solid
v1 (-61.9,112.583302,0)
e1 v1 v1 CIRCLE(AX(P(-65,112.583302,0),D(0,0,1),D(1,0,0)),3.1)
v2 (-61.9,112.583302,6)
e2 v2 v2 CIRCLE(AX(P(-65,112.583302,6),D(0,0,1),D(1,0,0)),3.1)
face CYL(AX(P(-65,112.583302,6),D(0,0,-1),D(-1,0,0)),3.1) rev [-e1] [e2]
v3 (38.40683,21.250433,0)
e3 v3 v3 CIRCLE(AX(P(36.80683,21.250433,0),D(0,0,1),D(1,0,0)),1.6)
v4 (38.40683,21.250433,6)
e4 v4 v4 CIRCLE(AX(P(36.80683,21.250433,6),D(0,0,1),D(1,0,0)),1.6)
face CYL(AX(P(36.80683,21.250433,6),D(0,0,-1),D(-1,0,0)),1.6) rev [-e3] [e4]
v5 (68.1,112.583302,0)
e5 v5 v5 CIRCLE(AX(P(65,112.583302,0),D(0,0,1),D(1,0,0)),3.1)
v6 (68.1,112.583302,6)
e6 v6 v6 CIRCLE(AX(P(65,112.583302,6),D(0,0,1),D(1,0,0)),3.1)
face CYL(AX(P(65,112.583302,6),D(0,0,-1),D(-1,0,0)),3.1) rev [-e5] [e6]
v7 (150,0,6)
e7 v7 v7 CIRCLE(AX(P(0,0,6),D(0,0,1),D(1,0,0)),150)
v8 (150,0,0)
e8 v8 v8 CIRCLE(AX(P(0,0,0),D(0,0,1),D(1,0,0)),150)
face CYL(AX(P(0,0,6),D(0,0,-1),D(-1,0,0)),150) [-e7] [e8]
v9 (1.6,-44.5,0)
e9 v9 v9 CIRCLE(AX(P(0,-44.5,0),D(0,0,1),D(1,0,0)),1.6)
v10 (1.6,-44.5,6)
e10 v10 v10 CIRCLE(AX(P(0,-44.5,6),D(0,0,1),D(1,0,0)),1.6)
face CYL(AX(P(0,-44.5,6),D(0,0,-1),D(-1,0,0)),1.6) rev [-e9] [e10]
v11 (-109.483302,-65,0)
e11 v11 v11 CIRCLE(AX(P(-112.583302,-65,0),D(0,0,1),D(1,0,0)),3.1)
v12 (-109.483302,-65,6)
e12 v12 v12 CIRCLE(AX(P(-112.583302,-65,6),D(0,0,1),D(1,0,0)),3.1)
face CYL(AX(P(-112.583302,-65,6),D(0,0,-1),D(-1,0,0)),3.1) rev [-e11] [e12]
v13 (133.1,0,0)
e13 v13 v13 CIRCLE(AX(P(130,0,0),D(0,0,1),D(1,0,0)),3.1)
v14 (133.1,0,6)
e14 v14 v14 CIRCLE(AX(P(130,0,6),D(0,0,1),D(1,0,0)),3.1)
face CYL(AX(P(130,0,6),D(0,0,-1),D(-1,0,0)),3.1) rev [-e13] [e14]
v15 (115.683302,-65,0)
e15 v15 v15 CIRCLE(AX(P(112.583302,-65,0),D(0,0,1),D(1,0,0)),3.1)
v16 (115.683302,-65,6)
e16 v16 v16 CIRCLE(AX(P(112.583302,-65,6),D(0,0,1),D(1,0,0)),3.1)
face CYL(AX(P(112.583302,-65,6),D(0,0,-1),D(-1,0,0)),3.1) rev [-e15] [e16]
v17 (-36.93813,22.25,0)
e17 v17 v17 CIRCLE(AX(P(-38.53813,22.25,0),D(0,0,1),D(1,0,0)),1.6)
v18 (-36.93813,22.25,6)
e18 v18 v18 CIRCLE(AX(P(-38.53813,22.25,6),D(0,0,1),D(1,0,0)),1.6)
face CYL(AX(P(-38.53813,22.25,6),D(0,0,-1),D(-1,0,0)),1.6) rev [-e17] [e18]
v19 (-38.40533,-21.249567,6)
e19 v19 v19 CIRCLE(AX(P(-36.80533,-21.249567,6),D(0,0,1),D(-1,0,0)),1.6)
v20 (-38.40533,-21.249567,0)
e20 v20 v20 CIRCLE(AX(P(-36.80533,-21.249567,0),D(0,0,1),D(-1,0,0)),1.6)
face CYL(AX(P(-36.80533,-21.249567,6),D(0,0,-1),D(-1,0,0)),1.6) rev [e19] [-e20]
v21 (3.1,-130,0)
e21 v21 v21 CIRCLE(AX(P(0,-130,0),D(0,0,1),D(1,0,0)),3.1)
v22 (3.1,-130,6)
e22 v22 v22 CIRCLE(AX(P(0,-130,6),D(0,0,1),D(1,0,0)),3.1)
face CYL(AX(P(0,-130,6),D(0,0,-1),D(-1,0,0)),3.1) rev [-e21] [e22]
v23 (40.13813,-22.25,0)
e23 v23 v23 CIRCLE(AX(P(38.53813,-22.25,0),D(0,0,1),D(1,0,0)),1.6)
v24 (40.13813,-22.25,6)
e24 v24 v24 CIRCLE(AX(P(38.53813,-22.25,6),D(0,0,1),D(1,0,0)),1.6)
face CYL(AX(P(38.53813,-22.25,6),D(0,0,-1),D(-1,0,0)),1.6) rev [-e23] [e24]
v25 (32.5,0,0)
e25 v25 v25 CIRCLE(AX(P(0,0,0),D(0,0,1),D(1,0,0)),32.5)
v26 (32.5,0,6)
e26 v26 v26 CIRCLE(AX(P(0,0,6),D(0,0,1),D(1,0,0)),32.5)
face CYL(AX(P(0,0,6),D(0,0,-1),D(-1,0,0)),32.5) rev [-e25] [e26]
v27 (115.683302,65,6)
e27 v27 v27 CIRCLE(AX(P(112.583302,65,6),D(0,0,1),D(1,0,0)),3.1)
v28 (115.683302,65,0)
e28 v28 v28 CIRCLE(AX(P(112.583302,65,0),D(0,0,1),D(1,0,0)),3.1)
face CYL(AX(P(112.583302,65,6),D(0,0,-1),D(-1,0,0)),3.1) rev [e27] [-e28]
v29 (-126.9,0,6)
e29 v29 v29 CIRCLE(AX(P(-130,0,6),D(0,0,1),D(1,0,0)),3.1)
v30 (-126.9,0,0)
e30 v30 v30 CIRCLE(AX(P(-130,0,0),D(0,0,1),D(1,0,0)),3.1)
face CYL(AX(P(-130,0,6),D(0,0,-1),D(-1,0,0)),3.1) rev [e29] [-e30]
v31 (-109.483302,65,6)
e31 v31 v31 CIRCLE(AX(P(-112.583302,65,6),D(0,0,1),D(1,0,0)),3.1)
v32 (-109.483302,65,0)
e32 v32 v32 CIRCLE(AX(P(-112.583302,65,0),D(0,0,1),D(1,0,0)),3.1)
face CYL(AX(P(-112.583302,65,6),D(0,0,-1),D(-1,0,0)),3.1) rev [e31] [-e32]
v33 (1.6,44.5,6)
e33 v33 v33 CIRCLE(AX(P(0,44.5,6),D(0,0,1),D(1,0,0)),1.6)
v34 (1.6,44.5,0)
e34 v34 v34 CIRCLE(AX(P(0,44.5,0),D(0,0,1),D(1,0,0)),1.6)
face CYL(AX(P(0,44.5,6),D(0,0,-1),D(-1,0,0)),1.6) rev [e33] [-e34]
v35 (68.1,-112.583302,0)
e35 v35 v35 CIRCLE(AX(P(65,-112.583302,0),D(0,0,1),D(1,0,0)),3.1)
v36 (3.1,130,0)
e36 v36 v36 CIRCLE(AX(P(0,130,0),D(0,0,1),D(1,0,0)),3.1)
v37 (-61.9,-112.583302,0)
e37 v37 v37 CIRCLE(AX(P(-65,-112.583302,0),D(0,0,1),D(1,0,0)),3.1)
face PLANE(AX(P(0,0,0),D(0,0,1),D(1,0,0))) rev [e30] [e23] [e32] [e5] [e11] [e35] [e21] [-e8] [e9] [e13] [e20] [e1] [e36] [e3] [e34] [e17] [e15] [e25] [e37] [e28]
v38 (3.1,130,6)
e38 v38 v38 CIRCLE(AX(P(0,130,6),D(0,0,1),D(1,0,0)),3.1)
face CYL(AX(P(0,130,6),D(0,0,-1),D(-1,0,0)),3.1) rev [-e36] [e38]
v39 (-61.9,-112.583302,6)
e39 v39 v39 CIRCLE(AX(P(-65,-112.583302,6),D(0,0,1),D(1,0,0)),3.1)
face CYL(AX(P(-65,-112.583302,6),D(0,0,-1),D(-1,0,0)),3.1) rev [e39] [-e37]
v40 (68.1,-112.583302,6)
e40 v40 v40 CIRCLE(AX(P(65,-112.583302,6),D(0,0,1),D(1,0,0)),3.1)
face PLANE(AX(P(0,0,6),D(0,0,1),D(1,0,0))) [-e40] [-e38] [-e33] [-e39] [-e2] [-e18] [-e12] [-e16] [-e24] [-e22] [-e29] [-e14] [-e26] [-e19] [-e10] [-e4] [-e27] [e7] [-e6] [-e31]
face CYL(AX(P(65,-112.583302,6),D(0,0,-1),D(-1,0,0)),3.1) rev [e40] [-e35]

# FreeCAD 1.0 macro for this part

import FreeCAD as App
import Part
import Sketcher

doc = App.newDocument("Part")
params = doc.addObject("Spreadsheet::Sheet", "Params")
for row, (alias, value) in enumerate([
    ("sketch1_diameter", "300 mm"),
    ("sketch1_diameter2", "65 mm"),
    ("sketch1_diameter3", "6.2 mm"),
    ("sketch1_diameter4", "3.2 mm"),
    ("pad1_length", "6 mm"),
], start=1):
    params.set(f"A{row}", alias)
    params.set(f"B{row}", "=" + value)
    params.setAlias(f"B{row}", alias)

body = doc.addObject("PartDesign::Body", "Body")

# Sketch on XY plane
sketch1 = body.newObject("Sketcher::SketchObject", "Sketch")
sketch1.AttachmentSupport = (doc.getObject("XY_Plane"), [""])
sketch1.MapMode = "FlatFace"
sketch1.addGeometry([
    Part.Circle(App.Vector(0, 0, 0), App.Vector(0, 0, 1), 150),  # 0
    Part.Circle(App.Vector(-65, -112.583302, 0), App.Vector(0, 0, 1), 3.1),  # 1
    Part.Circle(App.Vector(-112.583302, -65, 0), App.Vector(0, 0, 1), 3.1),  # 2
    Part.Circle(App.Vector(-36.80533, -21.249567, 0), App.Vector(0, 0, 1), 1.6),  # 3
    Part.Circle(App.Vector(0, -130, 0), App.Vector(0, 0, 1), 3.1),  # 4
    Part.Circle(App.Vector(65, -112.583302, 0), App.Vector(0, 0, 1), 3.1),  # 5
    Part.Circle(App.Vector(0, -44.5, 0), App.Vector(0, 0, 1), 1.6),  # 6
    Part.Circle(App.Vector(38.53813, -22.25, 0), App.Vector(0, 0, 1), 1.6),  # 7
    Part.Circle(App.Vector(112.583302, -65, 0), App.Vector(0, 0, 1), 3.1),  # 8
    Part.Circle(App.Vector(-130, 0, 0), App.Vector(0, 0, 1), 3.1),  # 9
    Part.Circle(App.Vector(-112.583302, 65, 0), App.Vector(0, 0, 1), 3.1),  # 10
    Part.Circle(App.Vector(-38.53813, 22.25, 0), App.Vector(0, 0, 1), 1.6),  # 11
    Part.Circle(App.Vector(-65, 112.583302, 0), App.Vector(0, 0, 1), 3.1),  # 12
    Part.Circle(App.Vector(0, 0, 0), App.Vector(0, 0, 1), 32.5),  # 13
    Part.Circle(App.Vector(36.80683, 21.250433, 0), App.Vector(0, 0, 1), 1.6),  # 14
    Part.Circle(App.Vector(0, 44.5, 0), App.Vector(0, 0, 1), 1.6),  # 15
    Part.Circle(App.Vector(130, 0, 0), App.Vector(0, 0, 1), 3.1),  # 16
    Part.Circle(App.Vector(112.583302, 65, 0), App.Vector(0, 0, 1), 3.1),  # 17
    Part.Circle(App.Vector(0, 130, 0), App.Vector(0, 0, 1), 3.1),  # 18
    Part.Circle(App.Vector(65, 112.583302, 0), App.Vector(0, 0, 1), 3.1),  # 19
], False)
sketch1.addConstraint([
    Sketcher.Constraint("Coincident", 0, 3, -1, 1),
    Sketcher.Constraint("Coincident", 13, 3, -1, 1),
    Sketcher.Constraint("Equal", 1, 2),
    Sketcher.Constraint("Equal", 2, 4),
    Sketcher.Constraint("Equal", 4, 5),
    Sketcher.Constraint("Equal", 3, 6),
    Sketcher.Constraint("Equal", 6, 7),
    Sketcher.Constraint("Equal", 5, 8),
    Sketcher.Constraint("Equal", 8, 9),
    Sketcher.Constraint("Equal", 9, 10),
    Sketcher.Constraint("Equal", 7, 11),
    Sketcher.Constraint("Equal", 10, 12),
    Sketcher.Constraint("Equal", 11, 14),
    Sketcher.Constraint("Equal", 14, 15),
    Sketcher.Constraint("Equal", 12, 16),
    Sketcher.Constraint("Equal", 16, 17),
    Sketcher.Constraint("Equal", 17, 18),
    Sketcher.Constraint("Equal", 18, 19),
    Sketcher.Constraint("Symmetric", 8, 3, 10, 3, -1, 1),
    Sketcher.Constraint("Symmetric", 7, 3, 11, 3, -1, 1),
    Sketcher.Constraint("Symmetric", 5, 3, 12, 3, -1, 1),
    Sketcher.Constraint("Symmetric", 6, 3, 15, 3, -1, 1),
    Sketcher.Constraint("Symmetric", 9, 3, 16, 3, -1, 1),
    Sketcher.Constraint("Symmetric", 2, 3, 17, 3, -1, 1),
    Sketcher.Constraint("Symmetric", 4, 3, 18, 3, -1, 1),
    Sketcher.Constraint("Symmetric", 1, 3, 19, 3, -1, 1),
    Sketcher.Constraint("Symmetric", 1, 3, 5, 3, -2),
    Sketcher.Constraint("Symmetric", 2, 3, 8, 3, -2),
    Sketcher.Constraint("PointOnObject", 4, 3, -2),
    Sketcher.Constraint("PointOnObject", 6, 3, -2),
    Sketcher.Constraint("PointOnObject", 9, 3, -1),
    Sketcher.Constraint("Diameter", 0, 300.0),
    Sketcher.Constraint("Diameter", 13, 65.0),
    Sketcher.Constraint("Diameter", 1, 6.2),
    Sketcher.Constraint("Diameter", 3, 3.2),
    Sketcher.Constraint("DistanceX", 1, 3, -1, 1, 65.0),
    Sketcher.Constraint("DistanceY", 2, 3, -1, 1, 65.0),
    Sketcher.Constraint("DistanceY", 4, 3, -1, 1, 130.0),
    Sketcher.Constraint("DistanceX", 9, 3, -1, 1, 130.0),
    Sketcher.Constraint("DistanceY", 6, 3, -1, 1, 44.5),
    Sketcher.Constraint("DistanceY", 7, 3, 11, 3, 44.5),
    Sketcher.Constraint("DistanceX", 11, 3, 3, 3, 1.732801),
    Sketcher.Constraint("DistanceX", 14, 3, 7, 3, 1.731301),
    Sketcher.Constraint("DistanceX", 3, 3, -1, 1, 36.80533),
    Sketcher.Constraint("DistanceY", 3, 3, 12, 3, 133.832869),
    Sketcher.Constraint("DistanceY", 14, 3, 19, 3, 91.332869),
    Sketcher.Constraint("DistanceY", 1, 3, -1, 1, 112.583302),
    Sketcher.Constraint("DistanceX", 2, 3, -1, 1, 112.583302),
])
sketch1.setExpression("Constraints[31]", "Params.sketch1_diameter")
sketch1.setExpression("Constraints[32]", "Params.sketch1_diameter2")
sketch1.setExpression("Constraints[33]", "Params.sketch1_diameter3")
sketch1.setExpression("Constraints[34]", "Params.sketch1_diameter4")
pad1 = body.newObject("PartDesign::Pad", "Pad")
pad1.Profile = sketch1
pad1.setExpression("Length", "Params.pad1_length")

doc.recompute()
